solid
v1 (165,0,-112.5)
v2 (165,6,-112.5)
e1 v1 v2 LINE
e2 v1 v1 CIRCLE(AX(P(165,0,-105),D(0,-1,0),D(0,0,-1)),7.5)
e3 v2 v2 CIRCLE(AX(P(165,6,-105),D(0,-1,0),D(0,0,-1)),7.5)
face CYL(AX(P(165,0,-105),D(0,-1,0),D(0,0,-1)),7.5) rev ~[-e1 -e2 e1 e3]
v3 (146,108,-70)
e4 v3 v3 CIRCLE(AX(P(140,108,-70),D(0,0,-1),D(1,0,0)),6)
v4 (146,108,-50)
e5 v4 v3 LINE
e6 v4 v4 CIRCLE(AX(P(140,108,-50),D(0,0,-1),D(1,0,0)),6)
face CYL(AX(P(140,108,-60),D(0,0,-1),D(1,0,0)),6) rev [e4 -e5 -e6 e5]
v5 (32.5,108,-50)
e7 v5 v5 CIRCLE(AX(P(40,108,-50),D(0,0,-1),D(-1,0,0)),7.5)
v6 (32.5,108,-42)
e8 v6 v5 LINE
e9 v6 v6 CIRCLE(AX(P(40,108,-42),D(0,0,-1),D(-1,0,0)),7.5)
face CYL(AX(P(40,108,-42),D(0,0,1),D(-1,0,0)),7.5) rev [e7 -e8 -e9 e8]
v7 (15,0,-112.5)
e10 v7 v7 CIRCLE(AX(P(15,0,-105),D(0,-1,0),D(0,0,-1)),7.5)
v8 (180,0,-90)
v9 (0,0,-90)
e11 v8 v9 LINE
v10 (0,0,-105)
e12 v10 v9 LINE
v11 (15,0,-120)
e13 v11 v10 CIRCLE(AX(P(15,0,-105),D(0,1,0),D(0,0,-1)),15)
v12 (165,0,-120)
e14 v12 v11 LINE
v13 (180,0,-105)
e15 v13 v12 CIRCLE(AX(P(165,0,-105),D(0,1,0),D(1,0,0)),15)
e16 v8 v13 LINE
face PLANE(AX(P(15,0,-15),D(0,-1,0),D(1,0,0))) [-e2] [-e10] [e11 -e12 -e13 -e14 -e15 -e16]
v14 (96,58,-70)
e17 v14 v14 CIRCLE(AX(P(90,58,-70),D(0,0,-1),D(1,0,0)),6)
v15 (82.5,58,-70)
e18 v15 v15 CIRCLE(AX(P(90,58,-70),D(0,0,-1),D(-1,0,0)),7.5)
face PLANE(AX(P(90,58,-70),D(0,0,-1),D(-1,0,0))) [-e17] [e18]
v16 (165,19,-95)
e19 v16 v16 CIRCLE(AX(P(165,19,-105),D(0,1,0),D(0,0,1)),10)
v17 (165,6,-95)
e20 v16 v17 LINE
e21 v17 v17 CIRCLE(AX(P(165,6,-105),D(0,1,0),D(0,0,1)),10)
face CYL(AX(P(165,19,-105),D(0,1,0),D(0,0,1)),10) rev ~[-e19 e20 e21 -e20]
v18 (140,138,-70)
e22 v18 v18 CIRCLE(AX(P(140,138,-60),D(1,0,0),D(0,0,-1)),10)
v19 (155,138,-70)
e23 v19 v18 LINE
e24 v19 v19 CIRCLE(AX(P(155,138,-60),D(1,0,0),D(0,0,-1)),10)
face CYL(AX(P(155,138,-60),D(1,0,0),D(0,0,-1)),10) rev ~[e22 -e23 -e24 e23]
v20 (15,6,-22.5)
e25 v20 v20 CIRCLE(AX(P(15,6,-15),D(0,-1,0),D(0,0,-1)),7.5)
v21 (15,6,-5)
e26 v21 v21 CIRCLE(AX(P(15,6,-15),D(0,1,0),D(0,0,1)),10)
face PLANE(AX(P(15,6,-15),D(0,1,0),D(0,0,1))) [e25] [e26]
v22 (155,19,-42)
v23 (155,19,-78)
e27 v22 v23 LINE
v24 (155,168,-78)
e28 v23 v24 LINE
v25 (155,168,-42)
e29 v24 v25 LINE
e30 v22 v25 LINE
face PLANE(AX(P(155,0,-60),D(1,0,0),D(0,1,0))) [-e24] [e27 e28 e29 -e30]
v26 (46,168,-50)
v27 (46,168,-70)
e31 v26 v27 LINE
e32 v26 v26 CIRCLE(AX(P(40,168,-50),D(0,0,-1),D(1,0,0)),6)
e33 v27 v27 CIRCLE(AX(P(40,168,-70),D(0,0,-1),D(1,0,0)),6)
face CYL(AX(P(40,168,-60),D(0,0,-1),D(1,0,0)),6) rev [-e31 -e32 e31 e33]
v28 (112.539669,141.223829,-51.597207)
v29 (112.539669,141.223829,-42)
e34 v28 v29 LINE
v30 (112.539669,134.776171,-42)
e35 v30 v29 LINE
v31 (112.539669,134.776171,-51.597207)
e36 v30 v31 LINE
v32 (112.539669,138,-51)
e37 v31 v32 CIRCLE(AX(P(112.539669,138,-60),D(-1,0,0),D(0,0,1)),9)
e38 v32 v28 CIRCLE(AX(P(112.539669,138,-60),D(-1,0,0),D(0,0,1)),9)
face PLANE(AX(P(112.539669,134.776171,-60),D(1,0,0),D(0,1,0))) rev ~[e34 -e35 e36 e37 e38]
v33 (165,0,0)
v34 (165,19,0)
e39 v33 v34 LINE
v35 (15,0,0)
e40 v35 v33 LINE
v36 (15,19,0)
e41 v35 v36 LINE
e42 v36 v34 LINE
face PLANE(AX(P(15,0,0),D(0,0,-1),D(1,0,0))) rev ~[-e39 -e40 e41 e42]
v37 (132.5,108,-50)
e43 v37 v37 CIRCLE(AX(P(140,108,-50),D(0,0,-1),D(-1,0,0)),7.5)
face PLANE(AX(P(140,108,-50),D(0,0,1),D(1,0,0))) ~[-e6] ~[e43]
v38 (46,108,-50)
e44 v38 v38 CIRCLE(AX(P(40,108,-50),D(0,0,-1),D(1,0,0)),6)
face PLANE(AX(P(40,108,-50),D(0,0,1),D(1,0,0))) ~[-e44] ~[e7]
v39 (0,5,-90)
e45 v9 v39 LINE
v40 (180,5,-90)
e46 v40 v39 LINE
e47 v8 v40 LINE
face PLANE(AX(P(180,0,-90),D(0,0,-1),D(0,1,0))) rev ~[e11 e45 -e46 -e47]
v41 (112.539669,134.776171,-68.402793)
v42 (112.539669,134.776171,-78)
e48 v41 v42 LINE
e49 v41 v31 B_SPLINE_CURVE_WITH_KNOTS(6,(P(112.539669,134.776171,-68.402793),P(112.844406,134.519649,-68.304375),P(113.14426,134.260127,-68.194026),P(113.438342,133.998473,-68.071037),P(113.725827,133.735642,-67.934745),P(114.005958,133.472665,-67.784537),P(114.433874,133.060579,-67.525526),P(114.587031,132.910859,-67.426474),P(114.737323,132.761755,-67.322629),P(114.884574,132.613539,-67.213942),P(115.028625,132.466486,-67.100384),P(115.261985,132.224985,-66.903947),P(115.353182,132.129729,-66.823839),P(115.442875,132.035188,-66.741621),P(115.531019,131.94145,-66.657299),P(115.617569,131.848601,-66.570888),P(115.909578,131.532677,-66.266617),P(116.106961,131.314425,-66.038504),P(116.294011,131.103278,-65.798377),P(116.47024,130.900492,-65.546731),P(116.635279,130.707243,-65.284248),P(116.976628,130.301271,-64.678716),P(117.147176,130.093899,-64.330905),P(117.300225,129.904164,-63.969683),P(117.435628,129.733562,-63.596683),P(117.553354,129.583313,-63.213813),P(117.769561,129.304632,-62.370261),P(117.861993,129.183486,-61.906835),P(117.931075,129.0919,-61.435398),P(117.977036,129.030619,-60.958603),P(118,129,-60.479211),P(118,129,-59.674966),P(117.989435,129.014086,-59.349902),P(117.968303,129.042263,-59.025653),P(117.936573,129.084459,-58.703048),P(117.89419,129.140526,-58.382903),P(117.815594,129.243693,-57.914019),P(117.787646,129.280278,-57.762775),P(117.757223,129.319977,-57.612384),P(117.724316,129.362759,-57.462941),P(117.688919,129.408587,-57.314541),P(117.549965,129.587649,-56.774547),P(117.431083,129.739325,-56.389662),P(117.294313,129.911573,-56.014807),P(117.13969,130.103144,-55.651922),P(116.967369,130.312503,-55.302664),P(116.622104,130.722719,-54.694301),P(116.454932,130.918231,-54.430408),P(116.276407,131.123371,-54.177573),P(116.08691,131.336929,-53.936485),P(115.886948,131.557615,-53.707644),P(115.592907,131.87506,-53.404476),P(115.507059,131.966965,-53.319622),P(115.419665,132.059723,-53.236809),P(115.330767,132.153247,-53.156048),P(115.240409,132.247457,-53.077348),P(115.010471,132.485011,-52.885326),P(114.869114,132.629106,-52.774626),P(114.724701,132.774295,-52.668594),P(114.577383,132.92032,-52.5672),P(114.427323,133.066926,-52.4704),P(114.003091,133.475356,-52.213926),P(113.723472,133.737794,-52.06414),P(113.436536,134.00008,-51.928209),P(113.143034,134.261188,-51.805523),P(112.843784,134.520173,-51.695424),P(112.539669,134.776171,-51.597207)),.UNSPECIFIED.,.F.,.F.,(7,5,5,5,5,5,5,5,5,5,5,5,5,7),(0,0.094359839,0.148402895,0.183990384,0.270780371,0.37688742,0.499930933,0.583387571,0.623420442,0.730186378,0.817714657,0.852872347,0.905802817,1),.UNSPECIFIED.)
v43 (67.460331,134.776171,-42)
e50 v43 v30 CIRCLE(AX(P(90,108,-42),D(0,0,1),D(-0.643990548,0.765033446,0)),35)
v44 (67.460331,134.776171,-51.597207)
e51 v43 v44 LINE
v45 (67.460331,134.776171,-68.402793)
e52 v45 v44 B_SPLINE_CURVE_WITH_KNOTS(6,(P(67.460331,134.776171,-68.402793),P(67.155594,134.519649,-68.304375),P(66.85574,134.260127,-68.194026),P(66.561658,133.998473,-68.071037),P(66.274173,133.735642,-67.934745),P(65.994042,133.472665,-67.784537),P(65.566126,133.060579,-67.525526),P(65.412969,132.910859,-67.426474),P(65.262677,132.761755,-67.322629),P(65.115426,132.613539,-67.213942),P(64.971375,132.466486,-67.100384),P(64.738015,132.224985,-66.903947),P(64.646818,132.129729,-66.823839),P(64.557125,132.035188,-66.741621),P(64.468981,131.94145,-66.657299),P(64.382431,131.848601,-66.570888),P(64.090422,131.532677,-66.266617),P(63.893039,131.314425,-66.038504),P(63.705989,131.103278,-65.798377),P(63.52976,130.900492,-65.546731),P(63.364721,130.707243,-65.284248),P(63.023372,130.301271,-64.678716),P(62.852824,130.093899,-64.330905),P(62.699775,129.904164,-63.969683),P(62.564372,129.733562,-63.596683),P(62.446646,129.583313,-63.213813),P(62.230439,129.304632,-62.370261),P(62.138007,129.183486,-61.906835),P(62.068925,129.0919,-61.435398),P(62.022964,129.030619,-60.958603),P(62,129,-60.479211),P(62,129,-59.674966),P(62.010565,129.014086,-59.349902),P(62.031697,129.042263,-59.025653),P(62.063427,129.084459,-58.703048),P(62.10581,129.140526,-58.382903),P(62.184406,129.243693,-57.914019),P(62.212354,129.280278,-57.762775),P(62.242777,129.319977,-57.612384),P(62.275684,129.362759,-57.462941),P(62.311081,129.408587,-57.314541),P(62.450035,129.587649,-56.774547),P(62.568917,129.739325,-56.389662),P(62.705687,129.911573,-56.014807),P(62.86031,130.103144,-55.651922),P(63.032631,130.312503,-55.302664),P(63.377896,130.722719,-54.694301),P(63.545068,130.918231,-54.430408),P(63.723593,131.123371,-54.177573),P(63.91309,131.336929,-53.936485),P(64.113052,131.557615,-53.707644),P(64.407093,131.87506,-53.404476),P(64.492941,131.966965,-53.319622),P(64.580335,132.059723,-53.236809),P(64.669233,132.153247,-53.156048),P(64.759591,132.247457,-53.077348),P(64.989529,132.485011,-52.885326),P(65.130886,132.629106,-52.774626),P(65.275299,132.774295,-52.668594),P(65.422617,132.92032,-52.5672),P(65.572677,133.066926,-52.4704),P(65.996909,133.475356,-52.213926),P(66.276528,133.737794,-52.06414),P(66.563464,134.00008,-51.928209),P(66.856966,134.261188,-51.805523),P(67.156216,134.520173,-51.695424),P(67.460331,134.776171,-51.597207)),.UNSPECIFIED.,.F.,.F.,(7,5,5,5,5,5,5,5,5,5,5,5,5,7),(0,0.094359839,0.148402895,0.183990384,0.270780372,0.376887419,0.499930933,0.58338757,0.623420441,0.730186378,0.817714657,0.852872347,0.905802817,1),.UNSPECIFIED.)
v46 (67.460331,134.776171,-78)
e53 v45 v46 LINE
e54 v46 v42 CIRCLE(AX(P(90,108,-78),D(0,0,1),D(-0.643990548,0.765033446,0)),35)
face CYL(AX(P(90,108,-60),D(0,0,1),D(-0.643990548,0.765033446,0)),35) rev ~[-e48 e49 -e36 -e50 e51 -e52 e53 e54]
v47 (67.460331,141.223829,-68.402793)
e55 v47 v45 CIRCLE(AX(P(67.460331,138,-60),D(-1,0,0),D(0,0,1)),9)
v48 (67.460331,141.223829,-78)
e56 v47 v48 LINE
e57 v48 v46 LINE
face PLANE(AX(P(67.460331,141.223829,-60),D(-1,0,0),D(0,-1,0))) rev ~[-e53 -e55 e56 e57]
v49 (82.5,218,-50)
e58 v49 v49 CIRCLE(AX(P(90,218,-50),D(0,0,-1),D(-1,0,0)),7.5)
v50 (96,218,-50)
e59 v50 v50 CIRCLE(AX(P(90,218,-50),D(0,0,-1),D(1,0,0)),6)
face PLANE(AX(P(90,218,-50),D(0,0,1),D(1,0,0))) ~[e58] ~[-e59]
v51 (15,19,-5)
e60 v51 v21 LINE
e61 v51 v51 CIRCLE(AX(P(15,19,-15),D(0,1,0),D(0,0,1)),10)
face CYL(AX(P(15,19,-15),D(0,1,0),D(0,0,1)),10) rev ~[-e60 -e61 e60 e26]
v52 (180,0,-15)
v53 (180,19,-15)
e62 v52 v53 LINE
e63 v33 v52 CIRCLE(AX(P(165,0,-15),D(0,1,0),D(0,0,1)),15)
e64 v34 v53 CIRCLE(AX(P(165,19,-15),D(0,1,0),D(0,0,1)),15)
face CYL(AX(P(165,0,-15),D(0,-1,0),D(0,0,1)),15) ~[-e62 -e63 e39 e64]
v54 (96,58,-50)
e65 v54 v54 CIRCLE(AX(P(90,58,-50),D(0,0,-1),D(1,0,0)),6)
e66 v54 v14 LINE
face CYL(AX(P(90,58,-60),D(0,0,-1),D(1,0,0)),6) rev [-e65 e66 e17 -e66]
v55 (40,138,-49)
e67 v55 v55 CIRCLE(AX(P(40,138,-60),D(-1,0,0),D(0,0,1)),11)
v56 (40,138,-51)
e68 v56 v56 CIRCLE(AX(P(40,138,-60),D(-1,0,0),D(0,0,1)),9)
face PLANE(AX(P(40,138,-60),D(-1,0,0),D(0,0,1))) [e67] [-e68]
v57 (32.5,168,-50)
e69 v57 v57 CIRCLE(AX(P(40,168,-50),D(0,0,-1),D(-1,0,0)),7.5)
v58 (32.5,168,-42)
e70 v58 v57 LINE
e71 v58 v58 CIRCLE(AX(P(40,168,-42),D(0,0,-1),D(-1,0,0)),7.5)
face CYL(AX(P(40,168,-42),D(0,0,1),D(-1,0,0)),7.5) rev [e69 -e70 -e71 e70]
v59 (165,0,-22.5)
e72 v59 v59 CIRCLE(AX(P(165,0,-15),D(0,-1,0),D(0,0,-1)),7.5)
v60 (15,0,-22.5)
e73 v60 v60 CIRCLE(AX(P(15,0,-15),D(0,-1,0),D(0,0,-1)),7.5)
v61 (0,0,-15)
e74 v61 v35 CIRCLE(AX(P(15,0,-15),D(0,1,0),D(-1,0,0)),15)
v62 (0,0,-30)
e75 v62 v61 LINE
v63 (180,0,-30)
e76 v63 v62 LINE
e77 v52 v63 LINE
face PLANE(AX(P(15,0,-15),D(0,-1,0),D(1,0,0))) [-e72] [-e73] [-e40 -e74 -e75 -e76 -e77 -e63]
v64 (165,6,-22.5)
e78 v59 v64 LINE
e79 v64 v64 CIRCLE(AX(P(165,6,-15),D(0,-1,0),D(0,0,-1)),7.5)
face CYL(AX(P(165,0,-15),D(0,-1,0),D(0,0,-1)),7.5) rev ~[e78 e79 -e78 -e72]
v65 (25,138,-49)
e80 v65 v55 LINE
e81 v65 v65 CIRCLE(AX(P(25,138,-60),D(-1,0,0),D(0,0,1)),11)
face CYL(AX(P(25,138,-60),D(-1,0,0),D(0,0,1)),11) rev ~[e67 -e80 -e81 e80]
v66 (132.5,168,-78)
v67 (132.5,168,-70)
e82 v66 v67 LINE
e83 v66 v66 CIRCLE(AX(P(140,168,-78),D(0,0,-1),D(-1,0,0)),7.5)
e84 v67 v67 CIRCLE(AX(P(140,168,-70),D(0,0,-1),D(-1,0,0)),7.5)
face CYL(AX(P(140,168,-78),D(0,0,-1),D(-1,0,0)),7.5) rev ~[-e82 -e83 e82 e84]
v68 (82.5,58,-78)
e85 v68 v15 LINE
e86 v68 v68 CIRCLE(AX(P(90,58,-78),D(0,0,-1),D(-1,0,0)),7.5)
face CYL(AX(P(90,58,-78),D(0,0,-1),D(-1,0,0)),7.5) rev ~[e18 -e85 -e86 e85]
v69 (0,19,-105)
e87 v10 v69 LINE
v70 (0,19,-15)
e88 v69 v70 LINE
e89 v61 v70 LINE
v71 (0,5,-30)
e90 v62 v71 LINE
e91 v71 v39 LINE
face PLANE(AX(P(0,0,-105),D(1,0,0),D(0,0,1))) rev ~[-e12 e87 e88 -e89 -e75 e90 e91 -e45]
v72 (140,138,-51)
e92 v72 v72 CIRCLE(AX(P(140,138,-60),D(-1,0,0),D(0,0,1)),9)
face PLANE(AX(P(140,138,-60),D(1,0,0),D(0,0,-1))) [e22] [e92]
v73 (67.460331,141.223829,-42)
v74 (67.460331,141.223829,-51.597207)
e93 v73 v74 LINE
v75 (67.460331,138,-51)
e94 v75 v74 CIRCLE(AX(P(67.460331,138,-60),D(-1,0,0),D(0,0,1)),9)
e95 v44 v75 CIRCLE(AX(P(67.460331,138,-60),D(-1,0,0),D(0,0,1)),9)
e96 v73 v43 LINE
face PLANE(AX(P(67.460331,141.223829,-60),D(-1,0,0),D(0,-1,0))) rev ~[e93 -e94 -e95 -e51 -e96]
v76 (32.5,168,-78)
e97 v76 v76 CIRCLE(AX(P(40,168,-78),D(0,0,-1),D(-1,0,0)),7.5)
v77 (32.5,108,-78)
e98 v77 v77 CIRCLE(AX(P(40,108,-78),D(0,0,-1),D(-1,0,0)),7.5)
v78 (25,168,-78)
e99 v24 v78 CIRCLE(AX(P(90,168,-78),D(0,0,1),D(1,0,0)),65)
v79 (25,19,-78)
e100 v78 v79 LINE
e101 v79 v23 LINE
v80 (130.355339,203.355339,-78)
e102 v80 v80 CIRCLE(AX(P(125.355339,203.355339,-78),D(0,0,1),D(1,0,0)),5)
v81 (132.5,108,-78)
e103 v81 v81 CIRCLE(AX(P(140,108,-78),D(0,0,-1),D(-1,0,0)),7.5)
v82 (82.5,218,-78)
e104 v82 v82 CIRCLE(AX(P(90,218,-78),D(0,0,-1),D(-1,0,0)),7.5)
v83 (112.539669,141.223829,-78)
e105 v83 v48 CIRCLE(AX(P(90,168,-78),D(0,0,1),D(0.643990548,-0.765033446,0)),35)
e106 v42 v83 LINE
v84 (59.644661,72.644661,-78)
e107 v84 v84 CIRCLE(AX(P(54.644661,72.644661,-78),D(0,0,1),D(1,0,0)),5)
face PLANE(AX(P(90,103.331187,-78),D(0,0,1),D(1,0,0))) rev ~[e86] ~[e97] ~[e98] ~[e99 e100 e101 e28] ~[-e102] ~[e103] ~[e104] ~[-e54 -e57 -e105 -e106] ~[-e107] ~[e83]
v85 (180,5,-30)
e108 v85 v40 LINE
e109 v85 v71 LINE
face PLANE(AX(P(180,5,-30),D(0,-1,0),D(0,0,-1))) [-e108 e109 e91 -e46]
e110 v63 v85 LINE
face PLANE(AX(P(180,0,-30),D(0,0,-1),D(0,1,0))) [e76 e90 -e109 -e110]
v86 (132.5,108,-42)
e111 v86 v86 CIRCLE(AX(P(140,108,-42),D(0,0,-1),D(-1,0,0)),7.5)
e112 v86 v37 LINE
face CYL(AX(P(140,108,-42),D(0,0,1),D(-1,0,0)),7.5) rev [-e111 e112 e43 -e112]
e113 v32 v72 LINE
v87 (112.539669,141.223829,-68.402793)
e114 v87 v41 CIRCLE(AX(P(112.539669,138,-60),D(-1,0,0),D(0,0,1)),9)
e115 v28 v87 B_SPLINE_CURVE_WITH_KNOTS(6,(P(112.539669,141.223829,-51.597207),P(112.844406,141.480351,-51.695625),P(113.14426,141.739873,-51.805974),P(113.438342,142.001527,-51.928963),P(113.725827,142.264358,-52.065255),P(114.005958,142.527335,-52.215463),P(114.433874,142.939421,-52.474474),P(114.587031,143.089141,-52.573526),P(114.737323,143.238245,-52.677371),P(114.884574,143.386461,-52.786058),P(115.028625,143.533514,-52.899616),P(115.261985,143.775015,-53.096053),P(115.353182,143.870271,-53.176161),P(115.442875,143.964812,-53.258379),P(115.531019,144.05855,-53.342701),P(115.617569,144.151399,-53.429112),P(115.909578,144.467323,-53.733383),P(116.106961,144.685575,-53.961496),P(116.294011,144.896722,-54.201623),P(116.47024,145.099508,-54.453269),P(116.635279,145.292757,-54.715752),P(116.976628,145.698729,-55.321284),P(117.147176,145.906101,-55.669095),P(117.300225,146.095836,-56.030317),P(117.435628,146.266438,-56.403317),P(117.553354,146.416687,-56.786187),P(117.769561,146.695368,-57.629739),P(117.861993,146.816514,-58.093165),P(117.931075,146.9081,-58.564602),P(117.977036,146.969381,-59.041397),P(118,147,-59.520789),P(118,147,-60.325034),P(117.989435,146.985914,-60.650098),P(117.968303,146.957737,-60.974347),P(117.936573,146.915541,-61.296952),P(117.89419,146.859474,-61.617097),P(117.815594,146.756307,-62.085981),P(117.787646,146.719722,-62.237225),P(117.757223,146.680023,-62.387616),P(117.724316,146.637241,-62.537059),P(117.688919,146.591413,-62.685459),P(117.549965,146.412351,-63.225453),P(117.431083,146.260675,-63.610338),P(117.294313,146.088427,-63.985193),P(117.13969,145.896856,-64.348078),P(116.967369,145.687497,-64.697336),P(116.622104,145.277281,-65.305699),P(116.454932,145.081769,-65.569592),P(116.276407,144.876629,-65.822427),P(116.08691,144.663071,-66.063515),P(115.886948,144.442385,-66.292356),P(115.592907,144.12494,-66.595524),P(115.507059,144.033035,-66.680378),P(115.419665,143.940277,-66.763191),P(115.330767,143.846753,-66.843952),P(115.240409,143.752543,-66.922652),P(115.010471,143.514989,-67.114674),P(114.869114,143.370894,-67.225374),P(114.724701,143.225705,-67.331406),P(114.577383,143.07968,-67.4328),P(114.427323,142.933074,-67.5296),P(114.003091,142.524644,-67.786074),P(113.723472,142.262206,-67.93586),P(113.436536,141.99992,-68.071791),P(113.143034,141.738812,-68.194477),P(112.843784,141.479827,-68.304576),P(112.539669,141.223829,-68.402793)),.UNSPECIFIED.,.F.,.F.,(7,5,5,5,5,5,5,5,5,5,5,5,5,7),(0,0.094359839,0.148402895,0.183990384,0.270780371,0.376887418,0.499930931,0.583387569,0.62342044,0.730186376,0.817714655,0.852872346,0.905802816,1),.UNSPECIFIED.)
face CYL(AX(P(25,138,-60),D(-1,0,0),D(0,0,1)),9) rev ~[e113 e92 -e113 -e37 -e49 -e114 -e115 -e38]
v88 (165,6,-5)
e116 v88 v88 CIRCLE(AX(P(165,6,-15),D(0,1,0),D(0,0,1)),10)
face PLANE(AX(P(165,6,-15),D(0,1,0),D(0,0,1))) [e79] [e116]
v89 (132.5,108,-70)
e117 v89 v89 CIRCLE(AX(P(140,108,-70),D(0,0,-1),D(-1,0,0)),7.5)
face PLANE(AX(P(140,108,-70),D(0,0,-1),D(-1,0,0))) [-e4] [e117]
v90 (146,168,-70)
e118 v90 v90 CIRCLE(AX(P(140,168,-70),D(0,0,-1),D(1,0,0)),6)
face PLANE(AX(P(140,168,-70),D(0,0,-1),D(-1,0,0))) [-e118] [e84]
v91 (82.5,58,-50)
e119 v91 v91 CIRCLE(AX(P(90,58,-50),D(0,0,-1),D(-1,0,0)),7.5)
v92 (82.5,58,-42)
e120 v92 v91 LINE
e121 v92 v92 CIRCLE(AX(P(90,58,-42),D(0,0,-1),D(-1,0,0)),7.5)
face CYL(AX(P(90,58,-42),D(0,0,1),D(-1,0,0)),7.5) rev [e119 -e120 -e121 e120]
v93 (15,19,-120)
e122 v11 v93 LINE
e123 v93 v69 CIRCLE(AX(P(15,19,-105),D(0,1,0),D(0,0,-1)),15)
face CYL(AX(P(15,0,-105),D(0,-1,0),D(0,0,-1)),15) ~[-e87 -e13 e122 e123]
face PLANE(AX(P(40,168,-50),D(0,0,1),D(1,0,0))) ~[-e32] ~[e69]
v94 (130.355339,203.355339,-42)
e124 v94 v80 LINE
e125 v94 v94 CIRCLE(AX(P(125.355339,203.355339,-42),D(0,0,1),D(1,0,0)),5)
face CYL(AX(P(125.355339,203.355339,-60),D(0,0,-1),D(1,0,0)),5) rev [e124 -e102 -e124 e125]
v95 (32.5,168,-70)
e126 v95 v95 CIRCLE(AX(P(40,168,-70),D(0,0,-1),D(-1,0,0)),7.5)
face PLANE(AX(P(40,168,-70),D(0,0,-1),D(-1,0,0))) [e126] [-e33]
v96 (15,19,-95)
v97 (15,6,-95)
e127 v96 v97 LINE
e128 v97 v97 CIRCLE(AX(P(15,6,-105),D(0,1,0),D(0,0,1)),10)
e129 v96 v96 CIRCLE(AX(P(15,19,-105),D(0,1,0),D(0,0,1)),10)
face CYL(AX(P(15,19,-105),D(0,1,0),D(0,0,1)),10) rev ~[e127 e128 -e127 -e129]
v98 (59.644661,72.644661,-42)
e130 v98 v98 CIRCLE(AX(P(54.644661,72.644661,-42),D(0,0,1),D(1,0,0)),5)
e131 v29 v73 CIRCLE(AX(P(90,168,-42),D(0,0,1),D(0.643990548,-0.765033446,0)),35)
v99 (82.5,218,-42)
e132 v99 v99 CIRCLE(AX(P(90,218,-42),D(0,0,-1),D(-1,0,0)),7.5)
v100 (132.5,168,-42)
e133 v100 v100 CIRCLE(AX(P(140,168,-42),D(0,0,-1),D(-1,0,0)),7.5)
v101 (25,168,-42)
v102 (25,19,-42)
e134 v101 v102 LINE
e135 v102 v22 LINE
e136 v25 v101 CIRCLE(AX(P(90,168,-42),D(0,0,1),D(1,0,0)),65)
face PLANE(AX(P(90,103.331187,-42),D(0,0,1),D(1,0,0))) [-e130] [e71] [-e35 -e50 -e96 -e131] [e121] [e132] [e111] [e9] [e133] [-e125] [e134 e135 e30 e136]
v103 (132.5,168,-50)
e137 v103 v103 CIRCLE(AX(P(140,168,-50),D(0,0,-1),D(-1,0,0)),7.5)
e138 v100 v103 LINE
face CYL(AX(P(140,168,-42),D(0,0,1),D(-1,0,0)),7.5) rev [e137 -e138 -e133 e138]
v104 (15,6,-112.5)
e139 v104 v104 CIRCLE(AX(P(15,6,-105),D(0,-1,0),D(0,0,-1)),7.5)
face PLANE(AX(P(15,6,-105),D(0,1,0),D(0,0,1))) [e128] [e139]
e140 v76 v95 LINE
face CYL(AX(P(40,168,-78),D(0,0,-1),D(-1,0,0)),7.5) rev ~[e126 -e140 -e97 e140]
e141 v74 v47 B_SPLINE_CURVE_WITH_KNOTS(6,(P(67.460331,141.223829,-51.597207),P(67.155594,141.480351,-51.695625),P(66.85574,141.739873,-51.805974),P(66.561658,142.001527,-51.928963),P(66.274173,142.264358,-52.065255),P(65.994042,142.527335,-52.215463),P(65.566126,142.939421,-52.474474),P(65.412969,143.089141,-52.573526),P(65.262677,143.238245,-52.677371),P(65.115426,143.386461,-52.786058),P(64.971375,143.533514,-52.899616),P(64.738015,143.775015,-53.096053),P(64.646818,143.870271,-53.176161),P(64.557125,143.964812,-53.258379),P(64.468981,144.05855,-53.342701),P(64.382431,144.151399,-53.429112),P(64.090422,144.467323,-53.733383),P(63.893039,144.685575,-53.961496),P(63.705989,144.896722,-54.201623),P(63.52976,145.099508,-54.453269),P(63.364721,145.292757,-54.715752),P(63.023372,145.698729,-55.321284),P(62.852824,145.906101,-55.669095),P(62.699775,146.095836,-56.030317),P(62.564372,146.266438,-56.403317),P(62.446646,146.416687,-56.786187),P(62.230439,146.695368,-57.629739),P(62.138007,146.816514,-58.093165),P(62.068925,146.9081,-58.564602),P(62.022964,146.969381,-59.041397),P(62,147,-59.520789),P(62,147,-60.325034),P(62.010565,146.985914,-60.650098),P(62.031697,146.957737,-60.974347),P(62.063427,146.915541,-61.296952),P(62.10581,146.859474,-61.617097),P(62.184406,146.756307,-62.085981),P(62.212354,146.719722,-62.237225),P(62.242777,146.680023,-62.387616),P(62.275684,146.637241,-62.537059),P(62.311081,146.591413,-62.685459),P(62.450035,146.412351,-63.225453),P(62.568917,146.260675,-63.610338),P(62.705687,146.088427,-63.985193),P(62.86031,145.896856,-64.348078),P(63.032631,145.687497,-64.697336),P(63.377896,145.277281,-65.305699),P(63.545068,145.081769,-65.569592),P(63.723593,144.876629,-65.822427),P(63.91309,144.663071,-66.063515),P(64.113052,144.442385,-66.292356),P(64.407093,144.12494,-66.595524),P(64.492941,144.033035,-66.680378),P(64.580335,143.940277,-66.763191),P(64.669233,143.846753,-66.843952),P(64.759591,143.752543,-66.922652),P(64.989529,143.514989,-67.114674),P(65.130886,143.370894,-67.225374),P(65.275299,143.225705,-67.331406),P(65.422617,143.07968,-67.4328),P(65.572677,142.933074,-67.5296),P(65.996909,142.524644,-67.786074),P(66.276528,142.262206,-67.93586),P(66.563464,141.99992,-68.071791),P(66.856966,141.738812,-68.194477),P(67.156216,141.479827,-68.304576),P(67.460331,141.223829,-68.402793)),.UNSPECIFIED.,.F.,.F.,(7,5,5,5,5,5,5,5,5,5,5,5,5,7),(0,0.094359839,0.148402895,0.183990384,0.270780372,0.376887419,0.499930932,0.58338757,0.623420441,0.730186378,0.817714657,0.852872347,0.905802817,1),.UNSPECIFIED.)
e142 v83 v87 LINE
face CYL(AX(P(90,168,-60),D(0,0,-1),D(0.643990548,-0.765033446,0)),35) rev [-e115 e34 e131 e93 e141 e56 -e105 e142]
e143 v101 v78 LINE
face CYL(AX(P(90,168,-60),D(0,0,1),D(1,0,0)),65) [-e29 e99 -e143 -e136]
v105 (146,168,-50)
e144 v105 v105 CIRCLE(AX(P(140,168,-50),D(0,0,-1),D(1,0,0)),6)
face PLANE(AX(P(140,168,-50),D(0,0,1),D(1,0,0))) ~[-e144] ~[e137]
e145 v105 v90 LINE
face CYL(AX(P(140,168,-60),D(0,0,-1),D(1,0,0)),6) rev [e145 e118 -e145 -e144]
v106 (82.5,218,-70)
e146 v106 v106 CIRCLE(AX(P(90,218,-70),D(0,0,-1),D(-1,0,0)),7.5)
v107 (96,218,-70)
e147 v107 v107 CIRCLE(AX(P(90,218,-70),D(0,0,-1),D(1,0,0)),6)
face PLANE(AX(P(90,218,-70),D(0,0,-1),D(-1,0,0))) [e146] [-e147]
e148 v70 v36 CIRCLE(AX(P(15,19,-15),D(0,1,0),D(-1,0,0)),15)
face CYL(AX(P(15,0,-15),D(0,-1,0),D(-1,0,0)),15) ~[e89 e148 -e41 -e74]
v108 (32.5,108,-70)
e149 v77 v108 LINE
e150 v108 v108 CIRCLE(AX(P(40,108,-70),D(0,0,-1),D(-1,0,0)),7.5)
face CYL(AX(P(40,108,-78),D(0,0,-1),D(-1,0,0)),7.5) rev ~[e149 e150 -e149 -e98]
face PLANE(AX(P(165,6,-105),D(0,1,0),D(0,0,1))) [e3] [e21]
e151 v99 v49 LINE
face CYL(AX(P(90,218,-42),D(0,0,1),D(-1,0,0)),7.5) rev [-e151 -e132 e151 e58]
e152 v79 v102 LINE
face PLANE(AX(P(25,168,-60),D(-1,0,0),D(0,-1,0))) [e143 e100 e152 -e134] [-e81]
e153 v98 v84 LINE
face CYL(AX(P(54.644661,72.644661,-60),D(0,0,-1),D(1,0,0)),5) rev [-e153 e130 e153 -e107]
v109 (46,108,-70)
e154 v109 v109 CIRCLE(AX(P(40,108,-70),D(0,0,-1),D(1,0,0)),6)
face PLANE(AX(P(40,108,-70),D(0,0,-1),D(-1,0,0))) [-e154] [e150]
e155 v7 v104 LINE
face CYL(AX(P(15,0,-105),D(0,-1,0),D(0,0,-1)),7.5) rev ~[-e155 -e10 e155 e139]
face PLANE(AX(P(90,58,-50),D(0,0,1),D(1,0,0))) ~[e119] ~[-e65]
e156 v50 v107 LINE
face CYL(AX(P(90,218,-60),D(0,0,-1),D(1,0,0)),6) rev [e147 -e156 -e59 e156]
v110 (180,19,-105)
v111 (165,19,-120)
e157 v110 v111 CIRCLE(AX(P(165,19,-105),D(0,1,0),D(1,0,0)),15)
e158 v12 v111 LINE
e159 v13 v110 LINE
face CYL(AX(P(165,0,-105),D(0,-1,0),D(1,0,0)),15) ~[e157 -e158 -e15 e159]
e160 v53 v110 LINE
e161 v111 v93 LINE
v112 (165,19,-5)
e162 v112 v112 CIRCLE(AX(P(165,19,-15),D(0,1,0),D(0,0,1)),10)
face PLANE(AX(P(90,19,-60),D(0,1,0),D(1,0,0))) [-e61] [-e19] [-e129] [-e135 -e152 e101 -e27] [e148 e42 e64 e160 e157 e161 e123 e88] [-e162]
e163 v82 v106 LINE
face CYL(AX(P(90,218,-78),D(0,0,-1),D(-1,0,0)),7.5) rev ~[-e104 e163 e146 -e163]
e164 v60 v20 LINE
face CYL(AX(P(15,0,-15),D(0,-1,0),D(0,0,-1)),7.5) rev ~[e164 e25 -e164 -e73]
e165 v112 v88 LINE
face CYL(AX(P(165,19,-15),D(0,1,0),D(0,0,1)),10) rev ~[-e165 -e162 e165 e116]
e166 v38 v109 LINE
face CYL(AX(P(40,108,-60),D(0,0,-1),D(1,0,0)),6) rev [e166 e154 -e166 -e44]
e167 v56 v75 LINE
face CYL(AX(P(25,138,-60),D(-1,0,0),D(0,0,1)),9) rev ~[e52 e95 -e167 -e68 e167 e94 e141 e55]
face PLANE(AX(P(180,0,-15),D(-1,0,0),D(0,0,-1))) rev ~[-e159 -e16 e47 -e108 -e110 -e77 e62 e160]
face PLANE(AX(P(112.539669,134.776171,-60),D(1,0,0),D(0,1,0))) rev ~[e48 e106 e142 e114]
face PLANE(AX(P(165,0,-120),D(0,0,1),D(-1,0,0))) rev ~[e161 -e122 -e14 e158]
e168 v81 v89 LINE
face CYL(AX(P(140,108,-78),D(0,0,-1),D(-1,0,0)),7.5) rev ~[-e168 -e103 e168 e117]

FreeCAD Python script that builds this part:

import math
import FreeCAD as App
import Part
import Sketcher
from FreeCAD import Vector

doc = App.newDocument("Part")
body = doc.addObject("PartDesign::Body", "Body")

sketch1 = body.newObject("Sketcher::SketchObject", "Sketch")
sketch1.AttachmentSupport = (doc.getObject("XZ_Plane"), [""])
sketch1.MapMode = "FlatFace"
sketch1.addGeometry(Part.LineSegment(Vector(15, 0, 0), Vector(165, 0, 0)), False)
sketch1.addGeometry(Part.ArcOfCircle(Part.Circle(Vector(165, -15, 0), Vector(0, 0, 1), 15), math.radians(0), math.radians(90)), False)
sketch1.addGeometry(Part.LineSegment(Vector(180, -15, 0), Vector(180, -105, 0)), False)
sketch1.addGeometry(Part.ArcOfCircle(Part.Circle(Vector(165, -105, 0), Vector(0, 0, 1), 15), math.radians(-90), math.radians(0)), False)
sketch1.addGeometry(Part.LineSegment(Vector(165, -120, 0), Vector(15, -120, 0)), False)
sketch1.addGeometry(Part.ArcOfCircle(Part.Circle(Vector(15, -105, 0), Vector(0, 0, 1), 15), math.radians(180), math.radians(270)), False)
sketch1.addGeometry(Part.LineSegment(Vector(0, -105, 0), Vector(0, -15, 0)), False)
sketch1.addGeometry(Part.ArcOfCircle(Part.Circle(Vector(15, -15, 0), Vector(0, 0, 1), 15), math.radians(90), math.radians(180)), False)
sketch1.addGeometry(Part.Circle(Vector(15, -15, 0), Vector(0, 0, 1), 7.5), False)
sketch1.addGeometry(Part.Circle(Vector(165, -15, 0), Vector(0, 0, 1), 7.5), False)
sketch1.addGeometry(Part.Circle(Vector(15, -105, 0), Vector(0, 0, 1), 7.5), False)
sketch1.addGeometry(Part.Circle(Vector(165, -105, 0), Vector(0, 0, 1), 7.5), False)
sketch1.addConstraint(Sketcher.Constraint("Tangent", 0, 2, 1, 2))
sketch1.addConstraint(Sketcher.Constraint("Tangent", 1, 1, 2, 1))
sketch1.addConstraint(Sketcher.Constraint("Tangent", 2, 2, 3, 2))
sketch1.addConstraint(Sketcher.Constraint("Tangent", 3, 1, 4, 1))
sketch1.addConstraint(Sketcher.Constraint("Tangent", 4, 2, 5, 2))
sketch1.addConstraint(Sketcher.Constraint("Tangent", 5, 1, 6, 1))
sketch1.addConstraint(Sketcher.Constraint("Tangent", 6, 2, 7, 2))
sketch1.addConstraint(Sketcher.Constraint("Tangent", 7, 1, 0, 1))
sketch1.addConstraint(Sketcher.Constraint("Horizontal", 0))
sketch1.addConstraint(Sketcher.Constraint("Vertical", 2))
sketch1.addConstraint(Sketcher.Constraint("Horizontal", 4))
sketch1.addConstraint(Sketcher.Constraint("Vertical", 6))
sketch1.addConstraint(Sketcher.Constraint("Coincident", 8, 3, 7, 3))
sketch1.addConstraint(Sketcher.Constraint("Coincident", 9, 3, 1, 3))
sketch1.addConstraint(Sketcher.Constraint("Coincident", 10, 3, 5, 3))
sketch1.addConstraint(Sketcher.Constraint("Coincident", 11, 3, 3, 3))
sketch1.addConstraint(Sketcher.Constraint("Equal", 1, 3))
sketch1.addConstraint(Sketcher.Constraint("Equal", 3, 5))
sketch1.addConstraint(Sketcher.Constraint("Equal", 5, 7))
sketch1.addConstraint(Sketcher.Constraint("Equal", 8, 9))
sketch1.addConstraint(Sketcher.Constraint("Equal", 9, 10))
sketch1.addConstraint(Sketcher.Constraint("Equal", 10, 11))
sketch1.addConstraint(Sketcher.Constraint("PointOnObject", 0, 2, -1))
sketch1.addConstraint(Sketcher.Constraint("PointOnObject", 5, 1, -2))
sketch1.addConstraint(Sketcher.Constraint("Diameter", 8, 15.0))
sketch1.addConstraint(Sketcher.Constraint("Radius", 1, 15.0))
sketch1.addConstraint(Sketcher.Constraint("DistanceX", 0, 1, 0, 2, 150.0))
sketch1.addConstraint(Sketcher.Constraint("DistanceY", 2, 2, 2, 1, 90.0))
pad1 = body.newObject("PartDesign::Pad", "Pad")
pad1.Profile = sketch1
pad1.Length = 19
pad1.Reversed = True

sketch2 = body.newObject("Sketcher::SketchObject", "Sketch001")
sketch2.AttachmentSupport = (doc.getObject("XZ_Plane"), [""])
sketch2.MapMode = "FlatFace"
sketch2.addGeometry(Part.Circle(Vector(165, -105, 0), Vector(0, 0, 1), 10), False)
sketch2.addGeometry(Part.Circle(Vector(165, -105, 0), Vector(0, 0, 1), 7.5), False)
sketch2.addGeometry(Part.Circle(Vector(165, -15, 0), Vector(0, 0, 1), 10), False)
sketch2.addGeometry(Part.Circle(Vector(165, -15, 0), Vector(0, 0, 1), 7.5), False)
sketch2.addGeometry(Part.Circle(Vector(15, -105, 0), Vector(0, 0, 1), 10), False)
sketch2.addGeometry(Part.Circle(Vector(15, -105, 0), Vector(0, 0, 1), 7.5), False)
sketch2.addGeometry(Part.Circle(Vector(15, -15, 0), Vector(0, 0, 1), 10), False)
sketch2.addGeometry(Part.Circle(Vector(15, -15, 0), Vector(0, 0, 1), 7.5), False)
sketch2.addConstraint(Sketcher.Constraint("Coincident", 1, 3, 0, 3))
sketch2.addConstraint(Sketcher.Constraint("Coincident", 3, 3, 2, 3))
sketch2.addConstraint(Sketcher.Constraint("Coincident", 5, 3, 4, 3))
sketch2.addConstraint(Sketcher.Constraint("Coincident", 7, 3, 6, 3))
sketch2.addConstraint(Sketcher.Constraint("Equal", 0, 2))
sketch2.addConstraint(Sketcher.Constraint("Equal", 1, 3))
sketch2.addConstraint(Sketcher.Constraint("Equal", 2, 4))
sketch2.addConstraint(Sketcher.Constraint("Equal", 3, 5))
sketch2.addConstraint(Sketcher.Constraint("Equal", 4, 6))
sketch2.addConstraint(Sketcher.Constraint("Equal", 5, 7))
sketch2.addConstraint(Sketcher.Constraint("Horizontal", 1, 3, 4, 3))
sketch2.addConstraint(Sketcher.Constraint("Horizontal", 3, 3, 6, 3))
sketch2.addConstraint(Sketcher.Constraint("Vertical", 1, 3, 2, 3))
sketch2.addConstraint(Sketcher.Constraint("Vertical", 5, 3, 6, 3))
sketch2.addConstraint(Sketcher.Constraint("Diameter", 0, 20.0))
sketch2.addConstraint(Sketcher.Constraint("Diameter", 1, 15.0))
sketch2.addConstraint(Sketcher.Constraint("DistanceX", -1, 1, 0, 3, 165.0))
sketch2.addConstraint(Sketcher.Constraint("DistanceY", 0, 3, -1, 1, 105.0))
sketch2.addConstraint(Sketcher.Constraint("DistanceY", 2, 3, -1, 1, 15.0))
sketch2.addConstraint(Sketcher.Constraint("DistanceX", -1, 1, 4, 3, 15.0))
pocket1 = body.newObject("PartDesign::Pocket", "Pocket")
pocket1.Profile = sketch2
pocket1.Length = 13

sketch3 = body.newObject("Sketcher::SketchObject", "Sketch002")
sketch3.AttachmentSupport = (doc.getObject("XY_Plane"), [""])
sketch3.MapMode = "FlatFace"
sketch3.AttachmentOffset = App.Placement(Vector(0, 0, -60), App.Rotation())
sketch3.addGeometry(Part.LineSegment(Vector(25, 0, 0), Vector(155, 0, 0)), False)
sketch3.addGeometry(Part.LineSegment(Vector(155, 0, 0), Vector(155, 168, 0)), False)
sketch3.addGeometry(Part.ArcOfCircle(Part.Circle(Vector(90, 168, 0), Vector(0, 0, 1), 65), math.radians(0), math.radians(180)), False)
sketch3.addGeometry(Part.LineSegment(Vector(25, 168, 0), Vector(25, 0, 0)), False)
sketch3.addGeometry(Part.Circle(Vector(54.644661, 72.644661, 0), Vector(0, 0, 1), 5), False)
sketch3.addGeometry(Part.Circle(Vector(40, 108, 0), Vector(0, 0, 1), 6), False)
sketch3.addGeometry(Part.Circle(Vector(90, 58, 0), Vector(0, 0, 1), 6), False)
sketch3.addGeometry(Part.LineSegment(Vector(67.460331, 134.776171, 0), Vector(67.460331, 141.223829, 0)), False)
sketch3.addGeometry(Part.ArcOfCircle(Part.Circle(Vector(90, 168, 0), Vector(0, 0, 1), 35), math.radians(-49.909968), math.radians(229.909968)), False)
sketch3.addGeometry(Part.LineSegment(Vector(112.539669, 141.223829, 0), Vector(112.539669, 134.776171, 0)), False)
sketch3.addGeometry(Part.ArcOfCircle(Part.Circle(Vector(90, 108, 0), Vector(0, 0, 1), 35), math.radians(130.090032), math.radians(409.909968)), False)
sketch3.addGeometry(Part.Circle(Vector(140, 108, 0), Vector(0, 0, 1), 6), False)
sketch3.addGeometry(Part.Circle(Vector(40, 168, 0), Vector(0, 0, 1), 6), False)
sketch3.addGeometry(Part.Circle(Vector(140, 168, 0), Vector(0, 0, 1), 6), False)
sketch3.addGeometry(Part.Circle(Vector(90, 218, 0), Vector(0, 0, 1), 6), False)
sketch3.addGeometry(Part.Circle(Vector(125.355339, 203.355339, 0), Vector(0, 0, 1), 5), False)
sketch3.addConstraint(Sketcher.Constraint("Coincident", 0, 2, 1, 1))
sketch3.addConstraint(Sketcher.Constraint("Tangent", 1, 2, 2, 1))
sketch3.addConstraint(Sketcher.Constraint("Tangent", 2, 2, 3, 1))
sketch3.addConstraint(Sketcher.Constraint("Coincident", 3, 2, 0, 1))
sketch3.addConstraint(Sketcher.Constraint("Coincident", 7, 2, 8, 2))
sketch3.addConstraint(Sketcher.Constraint("Coincident", 8, 1, 9, 1))
sketch3.addConstraint(Sketcher.Constraint("Coincident", 9, 2, 10, 2))
sketch3.addConstraint(Sketcher.Constraint("Coincident", 10, 1, 7, 1))
sketch3.addConstraint(Sketcher.Constraint("Horizontal", 0))
sketch3.addConstraint(Sketcher.Constraint("Vertical", 1))
sketch3.addConstraint(Sketcher.Constraint("Vertical", 3))
sketch3.addConstraint(Sketcher.Constraint("Vertical", 7))
sketch3.addConstraint(Sketcher.Constraint("Vertical", 9))
sketch3.addConstraint(Sketcher.Constraint("Coincident", 8, 3, 2, 3))
sketch3.addConstraint(Sketcher.Constraint("Equal", 5, 6))
sketch3.addConstraint(Sketcher.Constraint("Equal", 8, 10))
sketch3.addConstraint(Sketcher.Constraint("Equal", 6, 11))
sketch3.addConstraint(Sketcher.Constraint("Equal", 11, 12))
sketch3.addConstraint(Sketcher.Constraint("Equal", 12, 13))
sketch3.addConstraint(Sketcher.Constraint("Equal", 13, 14))
sketch3.addConstraint(Sketcher.Constraint("Equal", 4, 15))
sketch3.addConstraint(Sketcher.Constraint("PointOnObject", 0, 2, -1))
sketch3.addConstraint(Sketcher.Constraint("Horizontal", 5, 3, 10, 3))
sketch3.addConstraint(Sketcher.Constraint("Horizontal", 10, 3, 11, 3))
sketch3.addConstraint(Sketcher.Constraint("Horizontal", 8, 3, 12, 3))
sketch3.addConstraint(Sketcher.Constraint("Horizontal", 12, 3, 13, 3))
sketch3.addConstraint(Sketcher.Constraint("Horizontal", 7, 2, 8, 1))
sketch3.addConstraint(Sketcher.Constraint("Horizontal", 9, 2, 10, 1))
sketch3.addConstraint(Sketcher.Constraint("Vertical", 2, 3, 6, 3))
sketch3.addConstraint(Sketcher.Constraint("Vertical", 5, 3, 12, 3))
sketch3.addConstraint(Sketcher.Constraint("Vertical", 11, 3, 13, 3))
sketch3.addConstraint(Sketcher.Constraint("Vertical", 10, 3, 14, 3))
sketch3.addConstraint(Sketcher.Constraint("Diameter", 4, 10.0))
sketch3.addConstraint(Sketcher.Constraint("Diameter", 5, 12.0))
sketch3.addConstraint(Sketcher.Constraint("Radius", 2, 65.0))
sketch3.addConstraint(Sketcher.Constraint("Radius", 8, 35.0))
sketch3.addConstraint(Sketcher.Constraint("DistanceY", 1, 1, 1, 2, 168.0))
sketch3.addConstraint(Sketcher.Constraint("DistanceX", -1, 1, 2, 3, 90.0))
sketch3.addConstraint(Sketcher.Constraint("DistanceX", -1, 1, 5, 3, 40.0))
sketch3.addConstraint(Sketcher.Constraint("DistanceY", -1, 1, 5, 3, 108.0))
sketch3.addConstraint(Sketcher.Constraint("DistanceY", -1, 1, 6, 3, 58.0))
sketch3.addConstraint(Sketcher.Constraint("DistanceX", -1, 1, 11, 3, 140.0))
sketch3.addConstraint(Sketcher.Constraint("DistanceY", -1, 1, 14, 3, 218.0))
sketch3.addConstraint(Sketcher.Constraint("DistanceY", 7, 1, 7, 2, 6.447659))
sketch3.addConstraint(Sketcher.Constraint("DistanceX", -1, 1, 4, 3, 54.644661))
sketch3.addConstraint(Sketcher.Constraint("DistanceY", -1, 1, 4, 3, 72.644661))
sketch3.addConstraint(Sketcher.Constraint("DistanceX", -1, 1, 15, 3, 125.355339))
sketch3.addConstraint(Sketcher.Constraint("DistanceY", -1, 1, 15, 3, 203.355339))
pad2 = body.newObject("PartDesign::Pad", "Pad001")
pad2.Profile = sketch3
pad2.Length = 36
pad2.Midplane = True

sketch4 = body.newObject("Sketcher::SketchObject", "Sketch003")
sketch4.AttachmentSupport = (doc.getObject("XZ_Plane"), [""])
sketch4.MapMode = "FlatFace"
sketch4.addGeometry(Part.Circle(Vector(15, -15, 0), Vector(0, 0, 1), 10), False)
sketch4.addGeometry(Part.Circle(Vector(15, -15, 0), Vector(0, 0, 1), 7.5), False)
sketch4.addGeometry(Part.Circle(Vector(165, -15, 0), Vector(0, 0, 1), 10), False)
sketch4.addGeometry(Part.Circle(Vector(165, -15, 0), Vector(0, 0, 1), 7.5), False)
sketch4.addGeometry(Part.Circle(Vector(165, -105, 0), Vector(0, 0, 1), 10), False)
sketch4.addGeometry(Part.Circle(Vector(165, -105, 0), Vector(0, 0, 1), 7.5), False)
sketch4.addGeometry(Part.Circle(Vector(15, -105, 0), Vector(0, 0, 1), 10), False)
sketch4.addGeometry(Part.Circle(Vector(15, -105, 0), Vector(0, 0, 1), 7.5), False)
sketch4.addConstraint(Sketcher.Constraint("Coincident", 1, 3, 0, 3))
sketch4.addConstraint(Sketcher.Constraint("Coincident", 3, 3, 2, 3))
sketch4.addConstraint(Sketcher.Constraint("Coincident", 5, 3, 4, 3))
sketch4.addConstraint(Sketcher.Constraint("Coincident", 7, 3, 6, 3))
sketch4.addConstraint(Sketcher.Constraint("Equal", 0, 2))
sketch4.addConstraint(Sketcher.Constraint("Equal", 1, 3))
sketch4.addConstraint(Sketcher.Constraint("Equal", 2, 4))
sketch4.addConstraint(Sketcher.Constraint("Equal", 3, 5))
sketch4.addConstraint(Sketcher.Constraint("Equal", 4, 6))
sketch4.addConstraint(Sketcher.Constraint("Equal", 5, 7))
sketch4.addConstraint(Sketcher.Constraint("Horizontal", 1, 3, 2, 3))
sketch4.addConstraint(Sketcher.Constraint("Horizontal", 5, 3, 6, 3))
sketch4.addConstraint(Sketcher.Constraint("Vertical", 3, 3, 4, 3))
sketch4.addConstraint(Sketcher.Constraint("Vertical", 1, 3, 6, 3))
sketch4.addConstraint(Sketcher.Constraint("Diameter", 0, 20.0))
sketch4.addConstraint(Sketcher.Constraint("Diameter", 1, 15.0))
sketch4.addConstraint(Sketcher.Constraint("DistanceX", -1, 1, 0, 3, 15.0))
sketch4.addConstraint(Sketcher.Constraint("DistanceY", 0, 3, -1, 1, 15.0))
sketch4.addConstraint(Sketcher.Constraint("DistanceX", -1, 1, 2, 3, 165.0))
sketch4.addConstraint(Sketcher.Constraint("DistanceY", 4, 3, -1, 1, 105.0))
pad3 = body.newObject("PartDesign::Pad", "Pad002")
pad3.Profile = sketch4
pad3.Length = 13
pad3.Reversed = True

sketch5 = body.newObject("Sketcher::SketchObject", "Sketch004")
sketch5.AttachmentSupport = (doc.getObject("XZ_Plane"), [""])
sketch5.MapMode = "FlatFace"
sketch5.AttachmentOffset = App.Placement(Vector(0, 0, -19), App.Rotation())
sketch5.addGeometry(Part.Circle(Vector(15, -105, 0), Vector(0, 0, 1), 10), False)
sketch5.addGeometry(Part.Circle(Vector(165, -105, 0), Vector(0, 0, 1), 10), False)
sketch5.addGeometry(Part.Circle(Vector(165, -15, 0), Vector(0, 0, 1), 10), False)
sketch5.addGeometry(Part.Circle(Vector(15, -15, 0), Vector(0, 0, 1), 10), False)
sketch5.addConstraint(Sketcher.Constraint("Equal", 0, 1))
sketch5.addConstraint(Sketcher.Constraint("Equal", 1, 2))
sketch5.addConstraint(Sketcher.Constraint("Equal", 2, 3))
sketch5.addConstraint(Sketcher.Constraint("Horizontal", 0, 3, 1, 3))
sketch5.addConstraint(Sketcher.Constraint("Horizontal", 2, 3, 3, 3))
sketch5.addConstraint(Sketcher.Constraint("Vertical", 1, 3, 2, 3))
sketch5.addConstraint(Sketcher.Constraint("Vertical", 0, 3, 3, 3))
sketch5.addConstraint(Sketcher.Constraint("Diameter", 0, 20.0))
sketch5.addConstraint(Sketcher.Constraint("DistanceX", -1, 1, 0, 3, 15.0))
sketch5.addConstraint(Sketcher.Constraint("DistanceY", 0, 3, -1, 1, 105.0))
sketch5.addConstraint(Sketcher.Constraint("DistanceX", -1, 1, 1, 3, 165.0))
sketch5.addConstraint(Sketcher.Constraint("DistanceY", 2, 3, -1, 1, 15.0))
pocket2 = body.newObject("PartDesign::Pocket", "Pocket001")
pocket2.Profile = sketch5
pocket2.Length = 13
pocket2.Reversed = True

sketch6 = body.newObject("Sketcher::SketchObject", "Sketch005")
sketch6.AttachmentSupport = (doc.getObject("YZ_Plane"), [""])
sketch6.MapMode = "FlatFace"
sketch6.AttachmentOffset = App.Placement(Vector(0, 0, 180), App.Rotation())
sketch6.addGeometry(Part.LineSegment(Vector(5, -30, 0), Vector(0, -30, 0)), False)
sketch6.addGeometry(Part.LineSegment(Vector(0, -30, 0), Vector(0, -90, 0)), False)
sketch6.addGeometry(Part.LineSegment(Vector(0, -90, 0), Vector(5, -90, 0)), False)
sketch6.addGeometry(Part.LineSegment(Vector(5, -90, 0), Vector(5, -30, 0)), False)
sketch6.addConstraint(Sketcher.Constraint("Coincident", 0, 2, 1, 1))
sketch6.addConstraint(Sketcher.Constraint("Coincident", 1, 2, 2, 1))
sketch6.addConstraint(Sketcher.Constraint("Coincident", 2, 2, 3, 1))
sketch6.addConstraint(Sketcher.Constraint("Coincident", 3, 2, 0, 1))
sketch6.addConstraint(Sketcher.Constraint("Horizontal", 0))
sketch6.addConstraint(Sketcher.Constraint("Vertical", 1))
sketch6.addConstraint(Sketcher.Constraint("Horizontal", 2))
sketch6.addConstraint(Sketcher.Constraint("Vertical", 3))
sketch6.addConstraint(Sketcher.Constraint("PointOnObject", 0, 2, -2))
sketch6.addConstraint(Sketcher.Constraint("DistanceX", 0, 2, 0, 1, 5.0))
sketch6.addConstraint(Sketcher.Constraint("DistanceY", 1, 2, 1, 1, 60.0))
sketch6.addConstraint(Sketcher.Constraint("DistanceY", 0, 2, -1, 1, 30.0))
pocket3 = body.newObject("PartDesign::Pocket", "Pocket002")
pocket3.Profile = sketch6
pocket3.Length = 180

sketch7 = body.newObject("Sketcher::SketchObject", "Sketch006")
sketch7.AttachmentSupport = (doc.getObject("XY_Plane"), [""])
sketch7.MapMode = "FlatFace"
sketch7.AttachmentOffset = App.Placement(Vector(0, 0, -78), App.Rotation())
sketch7.addGeometry(Part.Circle(Vector(90, 218, 0), Vector(0, 0, 1), 7.5), False)
sketch7.addGeometry(Part.Circle(Vector(40, 168, 0), Vector(0, 0, 1), 7.5), False)
sketch7.addGeometry(Part.Circle(Vector(40, 108, 0), Vector(0, 0, 1), 7.5), False)
sketch7.addGeometry(Part.Circle(Vector(90, 58, 0), Vector(0, 0, 1), 7.5), False)
sketch7.addGeometry(Part.Circle(Vector(140, 108, 0), Vector(0, 0, 1), 7.5), False)
sketch7.addGeometry(Part.Circle(Vector(140, 168, 0), Vector(0, 0, 1), 7.5), False)
sketch7.addConstraint(Sketcher.Constraint("Equal", 0, 1))
sketch7.addConstraint(Sketcher.Constraint("Equal", 1, 2))
sketch7.addConstraint(Sketcher.Constraint("Equal", 2, 3))
sketch7.addConstraint(Sketcher.Constraint("Equal", 3, 4))
sketch7.addConstraint(Sketcher.Constraint("Equal", 4, 5))
sketch7.addConstraint(Sketcher.Constraint("Horizontal", 2, 3, 4, 3))
sketch7.addConstraint(Sketcher.Constraint("Horizontal", 1, 3, 5, 3))
sketch7.addConstraint(Sketcher.Constraint("Vertical", 1, 3, 2, 3))
sketch7.addConstraint(Sketcher.Constraint("Vertical", 0, 3, 3, 3))
sketch7.addConstraint(Sketcher.Constraint("Vertical", 4, 3, 5, 3))
sketch7.addConstraint(Sketcher.Constraint("Diameter", 0, 15.0))
sketch7.addConstraint(Sketcher.Constraint("DistanceX", -1, 1, 0, 3, 90.0))
sketch7.addConstraint(Sketcher.Constraint("DistanceY", -1, 1, 0, 3, 218.0))
sketch7.addConstraint(Sketcher.Constraint("DistanceX", -1, 1, 1, 3, 40.0))
sketch7.addConstraint(Sketcher.Constraint("DistanceY", -1, 1, 1, 3, 168.0))
sketch7.addConstraint(Sketcher.Constraint("DistanceY", -1, 1, 2, 3, 108.0))
sketch7.addConstraint(Sketcher.Constraint("DistanceY", -1, 1, 3, 3, 58.0))
sketch7.addConstraint(Sketcher.Constraint("DistanceX", -1, 1, 4, 3, 140.0))
pocket4 = body.newObject("PartDesign::Pocket", "Pocket003")
pocket4.Profile = sketch7
pocket4.Length = 8
pocket4.Reversed = True
doc.recompute()

datumplane = body.newObject("PartDesign::Plane", "DatumPlane")
datumplane.AttachmentSupport = (doc.getObject("XY_Plane"), [""])
datumplane.MapMode = "FlatFace"
datumplane.AttachmentOffset = App.Placement(Vector(0, 0, -60), App.Rotation())
mirrored = body.newObject("PartDesign::Mirrored", "Mirrored")
mirrored.Originals = [pocket4]
mirrored.MirrorPlane = (datumplane, [""])
body.Tip = mirrored

sketch8 = body.newObject("Sketcher::SketchObject", "Sketch007")
sketch8.AttachmentSupport = (doc.getObject("YZ_Plane"), [""])
sketch8.MapMode = "FlatFace"
sketch8.AttachmentOffset = App.Placement(Vector(0, 0, 25), App.Rotation())
sketch8.addGeometry(Part.Circle(Vector(138, -60, 0), Vector(0, 0, 1), 9), False)
sketch8.addConstraint(Sketcher.Constraint("Diameter", 0, 18.0))
sketch8.addConstraint(Sketcher.Constraint("DistanceX", -1, 1, 0, 3, 138.0))
sketch8.addConstraint(Sketcher.Constraint("DistanceY", 0, 3, -1, 1, 60.0))
pocket5 = body.newObject("PartDesign::Pocket", "Pocket004")
pocket5.Profile = sketch8
pocket5.Length = 130
pocket5.Reversed = True

sketch9 = body.newObject("Sketcher::SketchObject", "Sketch008")
sketch9.AttachmentSupport = (doc.getObject("YZ_Plane"), [""])
sketch9.MapMode = "FlatFace"
sketch9.AttachmentOffset = App.Placement(Vector(0, 0, 25), App.Rotation())
sketch9.addGeometry(Part.Circle(Vector(138, -60, 0), Vector(0, 0, 1), 11), False)
sketch9.addConstraint(Sketcher.Constraint("Diameter", 0, 22.0))
sketch9.addConstraint(Sketcher.Constraint("DistanceX", -1, 1, 0, 3, 138.0))
sketch9.addConstraint(Sketcher.Constraint("DistanceY", 0, 3, -1, 1, 60.0))
pocket6 = body.newObject("PartDesign::Pocket", "Pocket005")
pocket6.Profile = sketch9
pocket6.Length = 15
pocket6.Reversed = True

sketch10 = body.newObject("Sketcher::SketchObject", "Sketch009")
sketch10.AttachmentSupport = (doc.getObject("YZ_Plane"), [""])
sketch10.MapMode = "FlatFace"
sketch10.AttachmentOffset = App.Placement(Vector(0, 0, 155), App.Rotation())
sketch10.addGeometry(Part.Circle(Vector(138, -60, 0), Vector(0, 0, 1), 10), False)
sketch10.addConstraint(Sketcher.Constraint("Diameter", 0, 20.0))
sketch10.addConstraint(Sketcher.Constraint("DistanceX", -1, 1, 0, 3, 138.0))
sketch10.addConstraint(Sketcher.Constraint("DistanceY", 0, 3, -1, 1, 60.0))
pocket7 = body.newObject("PartDesign::Pocket", "Pocket006")
pocket7.Profile = sketch10
pocket7.Length = 15

doc.recompute()
